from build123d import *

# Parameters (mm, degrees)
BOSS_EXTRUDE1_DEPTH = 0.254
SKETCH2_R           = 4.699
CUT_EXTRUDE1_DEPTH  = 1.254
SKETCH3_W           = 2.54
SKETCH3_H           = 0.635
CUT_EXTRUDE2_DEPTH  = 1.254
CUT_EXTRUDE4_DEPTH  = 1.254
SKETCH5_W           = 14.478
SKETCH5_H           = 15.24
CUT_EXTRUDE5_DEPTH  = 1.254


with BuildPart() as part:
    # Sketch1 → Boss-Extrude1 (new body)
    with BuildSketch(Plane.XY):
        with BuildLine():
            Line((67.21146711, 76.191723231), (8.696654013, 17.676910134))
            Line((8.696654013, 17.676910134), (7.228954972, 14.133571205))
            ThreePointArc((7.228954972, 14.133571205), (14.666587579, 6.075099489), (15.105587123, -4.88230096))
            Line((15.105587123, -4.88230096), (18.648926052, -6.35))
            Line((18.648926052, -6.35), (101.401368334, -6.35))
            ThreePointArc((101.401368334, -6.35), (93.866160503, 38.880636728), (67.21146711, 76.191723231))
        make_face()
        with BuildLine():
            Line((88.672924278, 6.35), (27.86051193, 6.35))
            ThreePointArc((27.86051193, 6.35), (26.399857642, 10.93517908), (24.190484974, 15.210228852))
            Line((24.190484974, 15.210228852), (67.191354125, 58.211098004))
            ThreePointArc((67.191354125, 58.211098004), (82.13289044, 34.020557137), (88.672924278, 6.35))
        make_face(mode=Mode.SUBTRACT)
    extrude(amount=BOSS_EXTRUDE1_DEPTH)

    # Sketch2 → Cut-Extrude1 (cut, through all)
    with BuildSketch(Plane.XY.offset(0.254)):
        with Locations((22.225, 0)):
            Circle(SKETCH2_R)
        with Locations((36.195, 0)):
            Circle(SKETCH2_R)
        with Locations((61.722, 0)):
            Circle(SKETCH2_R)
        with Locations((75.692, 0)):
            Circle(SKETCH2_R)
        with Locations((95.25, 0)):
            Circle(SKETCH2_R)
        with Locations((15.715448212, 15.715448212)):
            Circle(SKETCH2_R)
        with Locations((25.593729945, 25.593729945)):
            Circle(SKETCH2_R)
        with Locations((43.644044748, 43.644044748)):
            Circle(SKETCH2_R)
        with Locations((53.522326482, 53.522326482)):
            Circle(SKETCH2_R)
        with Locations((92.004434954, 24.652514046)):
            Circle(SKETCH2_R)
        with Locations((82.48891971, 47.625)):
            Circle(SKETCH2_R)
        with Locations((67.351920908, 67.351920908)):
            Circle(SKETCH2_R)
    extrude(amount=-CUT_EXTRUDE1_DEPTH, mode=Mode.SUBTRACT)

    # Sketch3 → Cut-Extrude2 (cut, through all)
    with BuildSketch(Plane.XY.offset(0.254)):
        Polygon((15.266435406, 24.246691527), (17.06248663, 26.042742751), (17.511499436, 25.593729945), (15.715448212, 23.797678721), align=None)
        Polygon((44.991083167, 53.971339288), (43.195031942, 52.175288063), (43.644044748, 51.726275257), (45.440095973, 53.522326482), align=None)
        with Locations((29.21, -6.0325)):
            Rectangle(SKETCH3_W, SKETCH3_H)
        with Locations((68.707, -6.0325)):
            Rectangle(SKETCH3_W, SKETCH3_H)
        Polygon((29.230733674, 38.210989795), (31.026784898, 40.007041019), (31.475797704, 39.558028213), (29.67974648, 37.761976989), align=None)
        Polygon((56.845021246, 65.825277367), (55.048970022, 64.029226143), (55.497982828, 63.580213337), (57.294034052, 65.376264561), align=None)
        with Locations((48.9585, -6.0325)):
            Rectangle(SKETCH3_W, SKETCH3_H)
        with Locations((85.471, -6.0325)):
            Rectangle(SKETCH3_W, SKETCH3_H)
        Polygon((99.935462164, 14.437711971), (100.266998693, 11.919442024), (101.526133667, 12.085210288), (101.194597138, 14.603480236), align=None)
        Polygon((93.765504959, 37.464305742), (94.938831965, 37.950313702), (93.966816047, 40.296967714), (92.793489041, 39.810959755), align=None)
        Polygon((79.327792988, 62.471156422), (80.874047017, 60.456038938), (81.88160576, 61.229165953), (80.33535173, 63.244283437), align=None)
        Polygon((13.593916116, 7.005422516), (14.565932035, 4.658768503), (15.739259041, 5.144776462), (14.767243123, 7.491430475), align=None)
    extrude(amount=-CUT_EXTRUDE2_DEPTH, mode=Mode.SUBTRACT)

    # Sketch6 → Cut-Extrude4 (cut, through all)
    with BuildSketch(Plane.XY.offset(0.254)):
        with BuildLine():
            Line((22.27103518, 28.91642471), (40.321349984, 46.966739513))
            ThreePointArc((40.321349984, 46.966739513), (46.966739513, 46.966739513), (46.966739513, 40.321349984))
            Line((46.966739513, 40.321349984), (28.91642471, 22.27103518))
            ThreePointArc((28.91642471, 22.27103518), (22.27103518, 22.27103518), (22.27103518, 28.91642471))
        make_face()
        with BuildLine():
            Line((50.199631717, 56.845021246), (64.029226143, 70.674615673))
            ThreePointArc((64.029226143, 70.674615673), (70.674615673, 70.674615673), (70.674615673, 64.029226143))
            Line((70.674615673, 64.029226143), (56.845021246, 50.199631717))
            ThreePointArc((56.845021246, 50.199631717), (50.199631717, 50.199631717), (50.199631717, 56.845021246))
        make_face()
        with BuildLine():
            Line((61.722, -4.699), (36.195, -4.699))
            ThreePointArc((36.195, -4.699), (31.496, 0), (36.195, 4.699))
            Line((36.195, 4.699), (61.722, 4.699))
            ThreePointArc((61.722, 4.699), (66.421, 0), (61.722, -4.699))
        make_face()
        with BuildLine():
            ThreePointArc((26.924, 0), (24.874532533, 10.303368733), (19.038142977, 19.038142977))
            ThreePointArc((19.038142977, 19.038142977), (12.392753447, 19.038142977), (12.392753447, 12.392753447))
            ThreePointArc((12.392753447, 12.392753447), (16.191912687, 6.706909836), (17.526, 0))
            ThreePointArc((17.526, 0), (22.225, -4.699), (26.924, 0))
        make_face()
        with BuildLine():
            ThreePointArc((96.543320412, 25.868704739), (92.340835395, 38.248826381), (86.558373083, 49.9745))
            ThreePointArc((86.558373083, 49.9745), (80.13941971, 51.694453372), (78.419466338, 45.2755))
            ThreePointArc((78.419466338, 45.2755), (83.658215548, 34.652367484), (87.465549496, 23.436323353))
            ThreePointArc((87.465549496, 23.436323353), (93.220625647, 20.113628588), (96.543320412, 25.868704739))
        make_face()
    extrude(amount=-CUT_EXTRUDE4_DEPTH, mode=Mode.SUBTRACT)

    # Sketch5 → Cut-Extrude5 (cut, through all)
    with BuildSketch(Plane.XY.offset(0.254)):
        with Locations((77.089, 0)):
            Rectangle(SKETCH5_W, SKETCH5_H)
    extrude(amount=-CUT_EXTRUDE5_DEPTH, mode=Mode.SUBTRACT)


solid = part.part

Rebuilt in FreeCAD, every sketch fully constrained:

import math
import FreeCAD as App
import Part
import Sketcher
from FreeCAD import Vector
Q = App.Units.Quantity

doc = App.newDocument("Part")
body = doc.addObject("PartDesign::Body", "Body")

sketch1 = doc.addObject("Sketcher::SketchObject", "Sketch")
body.addObject(sketch1)
sketch1.AttachmentSupport = (doc.XY_Plane, [""])
sketch1.MapMode = "FlatFace"
sketch1.addGeometry([
    Part.LineSegment(Vector(67.2, 76.2, 0), Vector(8.7, 17.7, 0)),
    Part.LineSegment(Vector(8.7, 17.7, 0), Vector(7.2, 14.1, 0)),
    Part.ArcOfCircle(Part.Circle(Vector(0, 0, 0), Vector(0, 0, 1), 15.9), math.radians(-18), math.radians(63)),
    Part.LineSegment(Vector(15.1, -4.9, 0), Vector(18.6, -6.3, 0)),
    Part.LineSegment(Vector(18.6, -6.3, 0), Vector(101.4, -6.3, 0)),
    Part.ArcOfCircle(Part.Circle(Vector(0, 0, 0), Vector(0, 0, 1), 101.6), math.radians(-4), math.radians(49)),
    Part.ArcOfCircle(Part.Circle(Vector(0, 0, 0), Vector(0, 0, 1), 88.9), math.radians(4), math.radians(41)),
    Part.LineSegment(Vector(88.7, 6.3, 0), Vector(27.9, 6.3, 0)),
    Part.ArcOfCircle(Part.Circle(Vector(0, 0, 0), Vector(0, 0, 1), 28.6), math.radians(12.84), math.radians(32.16)),
    Part.LineSegment(Vector(24.2, 15.2, 0), Vector(67.2, 58.2, 0)),
], False)
sketch1.addConstraint([
    Sketcher.Constraint("Coincident", 0, 2, 1, 1),
    Sketcher.Constraint("Coincident", 1, 2, 2, 2),
    Sketcher.Constraint("Coincident", 2, 1, 3, 1),
    Sketcher.Constraint("Coincident", 3, 2, 4, 1),
    Sketcher.Constraint("Coincident", 4, 2, 5, 1),
    Sketcher.Constraint("Coincident", 5, 2, 0, 1),
    Sketcher.Constraint("Coincident", 6, 1, 7, 1),
    Sketcher.Constraint("Coincident", 7, 2, 8, 1),
    Sketcher.Constraint("Coincident", 8, 2, 9, 1),
    Sketcher.Constraint("Coincident", 9, 2, 6, 2),
    Sketcher.Constraint("Horizontal", 4),
    Sketcher.Constraint("Horizontal", 7),
    Sketcher.Constraint("Coincident", 2, 3, -1, 1),
    Sketcher.Constraint("Coincident", 5, 3, -1, 1),
    Sketcher.Constraint("Coincident", 6, 3, -1, 1),
    Sketcher.Constraint("Coincident", 8, 3, -1, 1),
    Sketcher.Constraint("Perpendicular", 1, 3),
    Sketcher.Constraint("Parallel", 0, 9),
    Sketcher.Constraint("Equal", 1, 3),
    Sketcher.Constraint("Radius", 5, Q("4 in")),
    Sketcher.Constraint("Radius", 6, Q("3.5 in")),
    Sketcher.Constraint("Angle", 0, Q("-135 deg")),
    Sketcher.Constraint("Radius", 2, Q("0.625 in")),
    Sketcher.Constraint("Radius", 8, Q("1.125 in")),
    Sketcher.Constraint("Angle", 1, Q("-112.5 deg")),
    Sketcher.Constraint("DistanceY", 4, 2, 6, 1, Q("0.5 in")),
    Sketcher.Constraint("DistanceY", 3, 2, -1, 1, Q("0.25 in")),
    Sketcher.Constraint("DistanceY", 2, 1, -1, 1, Q("4.882301 mm")),
    Sketcher.Constraint("DistanceY", -1, 1, 9, 2, Q("58.211098 mm")),
    Sketcher.Constraint("DistanceX", 5, 2, 4, 2, Q("34.189901 mm")),
])
pad1 = doc.addObject("PartDesign::Pad", "Pad")
body.addObject(pad1)
pad1.Profile = sketch1
pad1.Length = Q("0.01 in")

sketch2 = doc.addObject("Sketcher::SketchObject", "Sketch001")
body.addObject(sketch2)
sketch2.AttachmentSupport = (doc.XY_Plane, [""])
sketch2.MapMode = "FlatFace"
sketch2.AttachmentOffset = App.Placement(Vector(0, 0, 0.01 * 25.4), App.Rotation())
sketch2.addGeometry([
    Part.Circle(Vector(22.2, 0, 0), Vector(0, 0, 1), 4.7),
    Part.Circle(Vector(36.2, 0, 0), Vector(0, 0, 1), 4.7),
    Part.Circle(Vector(61.7, 0, 0), Vector(0, 0, 1), 4.7),
    Part.Circle(Vector(75.7, 0, 0), Vector(0, 0, 1), 4.7),
    Part.Circle(Vector(95.2, 0, 0), Vector(0, 0, 1), 4.7),
    Part.Circle(Vector(15.7, 15.7, 0), Vector(0, 0, 1), 4.7),
    Part.Circle(Vector(25.6, 25.6, 0), Vector(0, 0, 1), 4.7),
    Part.Circle(Vector(43.6, 43.6, 0), Vector(0, 0, 1), 4.7),
    Part.Circle(Vector(53.5, 53.5, 0), Vector(0, 0, 1), 4.7),
    Part.Circle(Vector(92, 24.7, 0), Vector(0, 0, 1), 4.7),
    Part.Circle(Vector(82.5, 47.6, 0), Vector(0, 0, 1), 4.7),
    Part.Circle(Vector(67.4, 67.4, 0), Vector(0, 0, 1), 4.7),
], False)
sketch2.addConstraint([
    Sketcher.Constraint("Equal", 0, 1),
    Sketcher.Constraint("Equal", 1, 2),
    Sketcher.Constraint("Equal", 2, 3),
    Sketcher.Constraint("Equal", 3, 4),
    Sketcher.Constraint("Equal", 4, 5),
    Sketcher.Constraint("Equal", 5, 6),
    Sketcher.Constraint("Equal", 6, 7),
    Sketcher.Constraint("Equal", 7, 8),
    Sketcher.Constraint("Equal", 8, 9),
    Sketcher.Constraint("Equal", 9, 10),
    Sketcher.Constraint("Equal", 10, 11),
    Sketcher.Constraint("PointOnObject", 0, 3, -1),
    Sketcher.Constraint("PointOnObject", 1, 3, -1),
    Sketcher.Constraint("PointOnObject", 2, 3, -1),
    Sketcher.Constraint("PointOnObject", 3, 3, -1),
    Sketcher.Constraint("PointOnObject", 4, 3, -1),
    Sketcher.Constraint("Diameter", 0, Q("0.37 in")),
    Sketcher.Constraint("DistanceX", -1, 1, 2, 3, Q("2.43 in")),
    Sketcher.Constraint("DistanceX", -1, 1, 3, 3, Q("2.98 in")),
    Sketcher.Constraint("DistanceX", -1, 1, 4, 3, Q("3.75 in")),
    Sketcher.Constraint("DistanceX", 0, 3, 1, 3, Q("0.55 in")),
    Sketcher.Constraint("DistanceX", -1, 1, 0, 3, Q("0.875 in")),
    Sketcher.Constraint("DistanceY", -1, 1, 10, 3, Q("1.875 in")),
    Sketcher.Constraint("DistanceX", 11, 3, 10, 3, Q("15.136999 mm")),
    Sketcher.Constraint("DistanceX", -1, 1, 5, 3, Q("15.715448 mm")),
    Sketcher.Constraint("DistanceY", -1, 1, 5, 3, Q("15.715448 mm")),
    Sketcher.Constraint("DistanceX", -1, 1, 6, 3, Q("25.59373 mm")),
    Sketcher.Constraint("DistanceY", -1, 1, 6, 3, Q("25.59373 mm")),
    Sketcher.Constraint("DistanceX", -1, 1, 10, 3, Q("82.48892 mm")),
    Sketcher.Constraint("DistanceY", -1, 1, 11, 3, Q("67.351921 mm")),
    Sketcher.Constraint("DistanceX", 7, 3, 8, 3, Q("9.878282 mm")),
    Sketcher.Constraint("DistanceY", 7, 3, 8, 3, Q("9.878282 mm")),
    Sketcher.Constraint("DistanceX", 5, 3, 8, 3, Q("37.806878 mm")),
    Sketcher.Constraint("DistanceY", 5, 3, 8, 3, Q("37.806878 mm")),
    Sketcher.Constraint("DistanceX", 8, 3, 9, 3, Q("38.482108 mm")),
    Sketcher.Constraint("DistanceY", 9, 3, 7, 3, Q("18.991531 mm")),
])
pocket1 = doc.addObject("PartDesign::Pocket", "Pocket")
body.addObject(pocket1)
pocket1.Profile = sketch2
pocket1.Type = "ThroughAll"

sketch3 = doc.addObject("Sketcher::SketchObject", "Sketch002")
body.addObject(sketch3)
sketch3.AttachmentSupport = (doc.XY_Plane, [""])
sketch3.MapMode = "FlatFace"
sketch3.AttachmentOffset = App.Placement(Vector(0, 0, 0.01 * 25.4), App.Rotation())
sketch3.addGeometry([
    Part.LineSegment(Vector(17.1, 26, 0), Vector(15.3, 24.2, 0)),
    Part.LineSegment(Vector(15.3, 24.2, 0), Vector(15.7, 23.8, 0)),
    Part.LineSegment(Vector(15.7, 23.8, 0), Vector(17.5, 25.6, 0)),
    Part.LineSegment(Vector(17.5, 25.6, 0), Vector(17.1, 26, 0)),
    Part.LineSegment(Vector(45, 54, 0), Vector(43.2, 52.2, 0)),
    Part.LineSegment(Vector(43.2, 52.2, 0), Vector(43.6, 51.7, 0)),
    Part.LineSegment(Vector(43.6, 51.7, 0), Vector(45.4, 53.5, 0)),
    Part.LineSegment(Vector(45.4, 53.5, 0), Vector(45, 54, 0)),
    Part.LineSegment(Vector(27.9, -5.7, 0), Vector(27.9, -6.3, 0)),
    Part.LineSegment(Vector(27.9, -6.3, 0), Vector(30.5, -6.3, 0)),
    Part.LineSegment(Vector(30.5, -6.3, 0), Vector(30.5, -5.7, 0)),
    Part.LineSegment(Vector(30.5, -5.7, 0), Vector(27.9, -5.7, 0)),
    Part.LineSegment(Vector(67.4, -5.7, 0), Vector(67.4, -6.3, 0)),
    Part.LineSegment(Vector(67.4, -6.3, 0), Vector(70, -6.3, 0)),
    Part.LineSegment(Vector(70, -6.3, 0), Vector(70, -5.7, 0)),
    Part.LineSegment(Vector(70, -5.7, 0), Vector(67.4, -5.7, 0)),
    Part.LineSegment(Vector(31, 40, 0), Vector(29.2, 38.2, 0)),
    Part.LineSegment(Vector(29.2, 38.2, 0), Vector(29.7, 37.8, 0)),
    Part.LineSegment(Vector(29.7, 37.8, 0), Vector(31.5, 39.6, 0)),
    Part.LineSegment(Vector(31.5, 39.6, 0), Vector(31, 40, 0)),
    Part.LineSegment(Vector(56.8, 65.8, 0), Vector(55, 64, 0)),
    Part.LineSegment(Vector(55, 64, 0), Vector(55.5, 63.6, 0)),
    Part.LineSegment(Vector(55.5, 63.6, 0), Vector(57.3, 65.4, 0)),
    Part.LineSegment(Vector(57.3, 65.4, 0), Vector(56.8, 65.8, 0)),
    Part.LineSegment(Vector(47.7, -5.7, 0), Vector(47.7, -6.3, 0)),
    Part.LineSegment(Vector(47.7, -6.3, 0), Vector(50.2, -6.3, 0)),
    Part.LineSegment(Vector(50.2, -6.3, 0), Vector(50.2, -5.7, 0)),
    Part.LineSegment(Vector(50.2, -5.7, 0), Vector(47.7, -5.7, 0)),
    Part.LineSegment(Vector(84.2, -5.7, 0), Vector(84.2, -6.3, 0)),
    Part.LineSegment(Vector(84.2, -6.3, 0), Vector(86.7, -6.3, 0)),
    Part.LineSegment(Vector(86.7, -6.3, 0), Vector(86.7, -5.7, 0)),
    Part.LineSegment(Vector(86.7, -5.7, 0), Vector(84.2, -5.7, 0)),
    Part.LineSegment(Vector(99.9, 14.4, 0), Vector(100.3, 11.9, 0)),
    Part.LineSegment(Vector(100.3, 11.9, 0), Vector(101.5, 12.1, 0)),
    Part.LineSegment(Vector(101.5, 12.1, 0), Vector(101.2, 14.6, 0)),
    Part.LineSegment(Vector(101.2, 14.6, 0), Vector(99.9, 14.4, 0)),
    Part.LineSegment(Vector(93.8, 37.5, 0), Vector(94.9, 38, 0)),
    Part.LineSegment(Vector(94.9, 38, 0), Vector(94, 40.3, 0)),
    Part.LineSegment(Vector(94, 40.3, 0), Vector(92.8, 39.8, 0)),
    Part.LineSegment(Vector(92.8, 39.8, 0), Vector(93.8, 37.5, 0)),
    Part.LineSegment(Vector(79.3, 62.5, 0), Vector(80.9, 60.5, 0)),
    Part.LineSegment(Vector(80.9, 60.5, 0), Vector(81.9, 61.2, 0)),
    Part.LineSegment(Vector(81.9, 61.2, 0), Vector(80.3, 63.2, 0)),
    Part.LineSegment(Vector(80.3, 63.2, 0), Vector(79.3, 62.5, 0)),
    Part.LineSegment(Vector(13.6, 7, 0), Vector(14.6, 4.7, 0)),
    Part.LineSegment(Vector(14.6, 4.7, 0), Vector(15.7, 5.1, 0)),
    Part.LineSegment(Vector(15.7, 5.1, 0), Vector(14.8, 7.5, 0)),
    Part.LineSegment(Vector(14.8, 7.5, 0), Vector(13.6, 7, 0)),
], False)
sketch3.addConstraint([
    Sketcher.Constraint("Coincident", 0, 2, 1, 1),
    Sketcher.Constraint("Coincident", 1, 2, 2, 1),
    Sketcher.Constraint("Coincident", 2, 2, 3, 1),
    Sketcher.Constraint("Coincident", 3, 2, 0, 1),
    Sketcher.Constraint("Coincident", 4, 2, 5, 1),
    Sketcher.Constraint("Coincident", 5, 2, 6, 1),
    Sketcher.Constraint("Coincident", 6, 2, 7, 1),
    Sketcher.Constraint("Coincident", 7, 2, 4, 1),
    Sketcher.Constraint("Coincident", 8, 2, 9, 1),
    Sketcher.Constraint("Coincident", 9, 2, 10, 1),
    Sketcher.Constraint("Coincident", 10, 2, 11, 1),
    Sketcher.Constraint("Coincident", 11, 2, 8, 1),
    Sketcher.Constraint("Coincident", 12, 2, 13, 1),
    Sketcher.Constraint("Coincident", 13, 2, 14, 1),
    Sketcher.Constraint("Coincident", 14, 2, 15, 1),
    Sketcher.Constraint("Coincident", 15, 2, 12, 1),
    Sketcher.Constraint("Coincident", 16, 2, 17, 1),
    Sketcher.Constraint("Coincident", 17, 2, 18, 1),
    Sketcher.Constraint("Coincident", 18, 2, 19, 1),
    Sketcher.Constraint("Coincident", 19, 2, 16, 1),
    Sketcher.Constraint("Coincident", 20, 2, 21, 1),
    Sketcher.Constraint("Coincident", 21, 2, 22, 1),
    Sketcher.Constraint("Coincident", 22, 2, 23, 1),
    Sketcher.Constraint("Coincident", 23, 2, 20, 1),
    Sketcher.Constraint("Coincident", 24, 2, 25, 1),
    Sketcher.Constraint("Coincident", 25, 2, 26, 1),
    Sketcher.Constraint("Coincident", 26, 2, 27, 1),
    Sketcher.Constraint("Coincident", 27, 2, 24, 1),
    Sketcher.Constraint("Coincident", 28, 2, 29, 1),
    Sketcher.Constraint("Coincident", 29, 2, 30, 1),
    Sketcher.Constraint("Coincident", 30, 2, 31, 1),
    Sketcher.Constraint("Coincident", 31, 2, 28, 1),
    Sketcher.Constraint("Coincident", 32, 2, 33, 1),
    Sketcher.Constraint("Coincident", 33, 2, 34, 1),
    Sketcher.Constraint("Coincident", 34, 2, 35, 1),
    Sketcher.Constraint("Coincident", 35, 2, 32, 1),
    Sketcher.Constraint("Coincident", 36, 2, 37, 1),
    Sketcher.Constraint("Coincident", 37, 2, 38, 1),
    Sketcher.Constraint("Coincident", 38, 2, 39, 1),
    Sketcher.Constraint("Coincident", 39, 2, 36, 1),
    Sketcher.Constraint("Coincident", 40, 2, 41, 1),
    Sketcher.Constraint("Coincident", 41, 2, 42, 1),
    Sketcher.Constraint("Coincident", 42, 2, 43, 1),
    Sketcher.Constraint("Coincident", 43, 2, 40, 1),
    Sketcher.Constraint("Coincident", 44, 2, 45, 1),
    Sketcher.Constraint("Coincident", 45, 2, 46, 1),
    Sketcher.Constraint("Coincident", 46, 2, 47, 1),
    Sketcher.Constraint("Coincident", 47, 2, 44, 1),
    Sketcher.Constraint("Vertical", 8),
    Sketcher.Constraint("Horizontal", 9),
    Sketcher.Constraint("Vertical", 10),
    Sketcher.Constraint("Horizontal", 11),
    Sketcher.Constraint("Vertical", 12),
    Sketcher.Constraint("Horizontal", 13),
    Sketcher.Constraint("Vertical", 14),
    Sketcher.Constraint("Horizontal", 15),
    Sketcher.Constraint("Vertical", 24),
    Sketcher.Constraint("Horizontal", 25),
    Sketcher.Constraint("Vertical", 26),
    Sketcher.Constraint("Horizontal", 27),
    Sketcher.Constraint("Vertical", 28),
    Sketcher.Constraint("Horizontal", 29),
    Sketcher.Constraint("Vertical", 30),
    Sketcher.Constraint("Horizontal", 31),
    Sketcher.Constraint("Perpendicular", 0, 1),
    Sketcher.Constraint("Perpendicular", 1, 2),
    Sketcher.Constraint("Perpendicular", 2, 3),
    Sketcher.Constraint("Perpendicular", 3, 4),
    Sketcher.Constraint("Perpendicular", 4, 5),
    Sketcher.Constraint("Perpendicular", 5, 6),
    Sketcher.Constraint("Perpendicular", 6, 7),
    Sketcher.Constraint("Perpendicular", 7, 16),
    Sketcher.Constraint("Perpendicular", 16, 17),
    Sketcher.Constraint("Perpendicular", 17, 18),
    Sketcher.Constraint("Perpendicular", 18, 19),
    Sketcher.Constraint("Perpendicular", 19, 20),
    Sketcher.Constraint("Perpendicular", 20, 21),
    Sketcher.Constraint("Perpendicular", 21, 22),
    Sketcher.Constraint("Perpendicular", 22, 23),
    Sketcher.Constraint("Perpendicular", 32, 33),
    Sketcher.Constraint("Perpendicular", 33, 34),
    Sketcher.Constraint("Perpendicular", 34, 35),
    Sketcher.Constraint("Perpendicular", 36, 37),
    Sketcher.Constraint("Perpendicular", 37, 38),
    Sketcher.Constraint("Perpendicular", 38, 39),
    Sketcher.Constraint("Perpendicular", 40, 41),
    Sketcher.Constraint("Perpendicular", 41, 42),
    Sketcher.Constraint("Perpendicular", 42, 43),
    Sketcher.Constraint("Parallel", 39, 44),
    Sketcher.Constraint("Perpendicular", 44, 45),
    Sketcher.Constraint("Perpendicular", 45, 46),
    Sketcher.Constraint("Perpendicular", 46, 47),
    Sketcher.Constraint("Horizontal", 9, 2, 12, 2),
    Sketcher.Constraint("Horizontal", 11, 2, 14, 2),
    Sketcher.Constraint("Horizontal", 13, 2, 24, 2),
    Sketcher.Constraint("Horizontal", 15, 2, 26, 2),
    Sketcher.Constraint("Horizontal", 25, 2, 28, 2),
    Sketcher.Constraint("Horizontal", 27, 2, 30, 2),
    Sketcher.Constraint("Equal", 11, 13),
    Sketcher.Constraint("Equal", 15, 25),
    Sketcher.Constraint("Equal", 27, 29),
    Sketcher.Constraint("Equal", 2, 4),
    Sketcher.Constraint("Equal", 3, 5),
    Sketcher.Constraint("Equal", 6, 16),
    Sketcher.Constraint("Equal", 7, 17),
    Sketcher.Constraint("Equal", 18, 20),
    Sketcher.Constraint("Equal", 19, 21),
    Sketcher.Constraint("Equal", 22, 32),
    Sketcher.Constraint("Equal", 35, 36),
    Sketcher.Constraint("Equal", 34, 37),
    Sketcher.Constraint("Equal", 39, 40),
    Sketcher.Constraint("Equal", 38, 41),
    Sketcher.Constraint("Equal", 42, 44),
    Sketcher.Constraint("Equal", 43, 45),
    Sketcher.Constraint("DistanceX", 9, 1, 9, 2, Q("0.1 in")),
    Sketcher.Constraint("Angle", 0, Q("-135 deg")),
    Sketcher.Constraint("Distance", 0, Q("0.1 in")),
    Sketcher.Constraint("DistanceX", -1, 1, 8, 2, Q("1.1 in")),
    Sketcher.Constraint("Angle", 32, Q("-82.5 deg")),
    Sketcher.Constraint("Angle", 36, Q("22.5 deg")),
    Sketcher.Constraint("Angle", 40, Q("-52.5 deg")),
    Sketcher.Constraint("Distance", 33, Q("0.05 in")),
    Sketcher.Constraint("DistanceY", 8, 2, 8, 1, Q("0.025 in")),
    Sketcher.Constraint("DistanceY", 8, 2, -1, 1, Q("0.25 in")),
    Sketcher.Constraint("DistanceX", 13, 2, 28, 2, Q("0.56 in")),
    Sketcher.Constraint("Distance", 1, Q("0.025 in")),
    Sketcher.Constraint("DistanceX", -1, 1, 12, 2, Q("2.655 in")),
    Sketcher.Constraint("DistanceX", -1, 1, 24, 2, Q("1.8775 in")),
    Sketcher.Constraint("DistanceX", -1, 1, 2, 2, Q("17.511499 mm")),
    Sketcher.Constraint("DistanceX", -1, 1, 32, 2, Q("100.266999 mm")),
    Sketcher.Constraint("DistanceX", 16, 2, 4, 2, Q("13.964298 mm")),
    Sketcher.Constraint("DistanceY", 16, 2, 4, 2, Q("13.964298 mm")),
    Sketcher.Constraint("DistanceX", 0, 2, 16, 2, Q("13.964298 mm")),
    Sketcher.Constraint("DistanceY", 0, 2, 16, 2, Q("13.964298 mm")),
    Sketcher.Constraint("DistanceY", 6, 2, 20, 2, Q("10.5069 mm")),
    Sketcher.Constraint("DistanceX", 7, 2, 21, 2, Q("10.5069 mm")),
    Sketcher.Constraint("DistanceY", 35, 2, 36, 2, Q("23.512602 mm")),
    Sketcher.Constraint("DistanceX", 36, 2, 33, 2, Q("6.587302 mm")),
    Sketcher.Constraint("DistanceY", 37, 2, 41, 2, Q("20.932198 mm")),
    Sketcher.Constraint("DistanceY", 41, 2, 22, 2, Q("4.147099 mm")),
    Sketcher.Constraint("DistanceY", 46, 2, 2, 2, Q("18.102299 mm")),
    Sketcher.Constraint("DistanceY", -1, 1, 0, 2, Q("24.246692 mm")),
    Sketcher.Constraint("DistanceX", -1, 1, 42, 2, Q("80.335352 mm")),
    Sketcher.Constraint("DistanceX", -1, 1, 45, 2, Q("15.739259 mm")),
])
pocket2 = doc.addObject("PartDesign::Pocket", "Pocket001")
body.addObject(pocket2)
pocket2.Profile = sketch3
pocket2.Type = "ThroughAll"

sketch4 = doc.addObject("Sketcher::SketchObject", "Sketch003")
body.addObject(sketch4)
sketch4.AttachmentSupport = (doc.XY_Plane, [""])
sketch4.MapMode = "FlatFace"
sketch4.AttachmentOffset = App.Placement(Vector(0, 0, 0.01 * 25.4), App.Rotation())
sketch4.addGeometry([
    Part.LineSegment(Vector(40.3, 47, 0), Vector(22.3, 28.9, 0)),
    Part.ArcOfCircle(Part.Circle(Vector(25.6, 25.6, 0), Vector(0, 0, 1), 4.7), math.radians(135), math.radians(315)),
    Part.LineSegment(Vector(28.9, 22.3, 0), Vector(47, 40.3, 0)),
    Part.ArcOfCircle(Part.Circle(Vector(43.6, 43.6, 0), Vector(0, 0, 1), 4.7), math.radians(-45), math.radians(135)),
    Part.LineSegment(Vector(64, 70.7, 0), Vector(50.2, 56.8, 0)),
    Part.ArcOfCircle(Part.Circle(Vector(53.5, 53.5, 0), Vector(0, 0, 1), 4.7), math.radians(135), math.radians(315)),
    Part.LineSegment(Vector(56.8, 50.2, 0), Vector(70.7, 64, 0)),
    Part.ArcOfCircle(Part.Circle(Vector(67.4, 67.4, 0), Vector(0, 0, 1), 4.7), math.radians(-45), math.radians(135)),
    Part.LineSegment(Vector(36.2, -4.7, 0), Vector(61.7, -4.7, 0)),
    Part.ArcOfCircle(Part.Circle(Vector(61.7, 0, 0), Vector(0, 0, 1), 4.7), math.radians(-90), math.radians(90)),
    Part.LineSegment(Vector(61.7, 4.7, 0), Vector(36.2, 4.7, 0)),
    Part.ArcOfCircle(Part.Circle(Vector(36.2, 0, 0), Vector(0, 0, 1), 4.7), math.radians(90), math.radians(270)),
    Part.ArcOfCircle(Part.Circle(Vector(0, 0, 0), Vector(0, 0, 1), 26.9), math.radians(0), math.radians(45)),
    Part.ArcOfCircle(Part.Circle(Vector(15.7, 15.7, 0), Vector(0, 0, 1), 4.7), math.radians(45), math.radians(225)),
    Part.ArcOfCircle(Part.Circle(Vector(0, 0, 0), Vector(0, 0, 1), 17.5), math.radians(0), math.radians(45)),
    Part.ArcOfCircle(Part.Circle(Vector(22.2, 0, 0), Vector(0, 0, 1), 4.7), math.radians(180), math.radians(360)),
    Part.ArcOfCircle(Part.Circle(Vector(0, 0, 0), Vector(0, 0, 1), 99.9), math.radians(15), math.radians(30)),
    Part.ArcOfCircle(Part.Circle(Vector(82.5, 47.6, 0), Vector(0, 0, 1), 4.7), math.radians(30), math.radians(210)),
    Part.ArcOfCircle(Part.Circle(Vector(0, 0, 0), Vector(0, 0, 1), 90.6), math.radians(15), math.radians(30)),
    Part.ArcOfCircle(Part.Circle(Vector(92, 24.7, 0), Vector(0, 0, 1), 4.7), math.radians(-165), math.radians(15)),
], False)
sketch4.addConstraint([
    Sketcher.Constraint("Tangent", 0, 2, 1, 1),
    Sketcher.Constraint("Tangent", 1, 2, 2, 1),
    Sketcher.Constraint("Tangent", 2, 2, 3, 1),
    Sketcher.Constraint("Tangent", 3, 2, 0, 1),
    Sketcher.Constraint("Tangent", 4, 2, 5, 1),
    Sketcher.Constraint("Tangent", 5, 2, 6, 1),
    Sketcher.Constraint("Tangent", 6, 2, 7, 1),
    Sketcher.Constraint("Tangent", 7, 2, 4, 1),
    Sketcher.Constraint("Tangent", 8, 2, 9, 1),
    Sketcher.Constraint("Tangent", 9, 2, 10, 1),
    Sketcher.Constraint("Tangent", 10, 2, 11, 1),
    Sketcher.Constraint("Tangent", 11, 2, 8, 1),
    Sketcher.Constraint("Tangent", 12, 2, 13, 1),
    Sketcher.Constraint("Tangent", 13, 2, 14, 2),
    Sketcher.Constraint("Tangent", 14, 1, 15, 1),
    Sketcher.Constraint("Tangent", 15, 2, 12, 1),
    Sketcher.Constraint("Tangent", 16, 2, 17, 1),
    Sketcher.Constraint("Tangent", 17, 2, 18, 2),
    Sketcher.Constraint("Tangent", 18, 1, 19, 1),
    Sketcher.Constraint("Tangent", 19, 2, 16, 1),
    Sketcher.Constraint("Horizontal", 8),
    Sketcher.Constraint("Horizontal", 10),
    Sketcher.Constraint("Coincident", 12, 3, -1, 1),
    Sketcher.Constraint("Coincident", 14, 3, -1, 1),
    Sketcher.Constraint("Coincident", 16, 3, -1, 1),
    Sketcher.Constraint("Coincident", 18, 3, -1, 1),
    Sketcher.Constraint("Equal", 1, 3),
    Sketcher.Constraint("Equal", 3, 5),
    Sketcher.Constraint("Equal", 5, 7),
    Sketcher.Constraint("Equal", 7, 9),
    Sketcher.Constraint("Equal", 11, 13),
    Sketcher.Constraint("Equal", 15, 17),
    Sketcher.Constraint("PointOnObject", 9, 3, -1),
    Sketcher.Constraint("PointOnObject", 15, 3, -1),
    Sketcher.Constraint("Parallel", 2, 4),
    Sketcher.Constraint("Radius", 12, Q("1.06 in")),
    Sketcher.Constraint("Radius", 14, Q("0.69 in")),
    Sketcher.Constraint("Angle", 0, Q("-135 deg")),
    Sketcher.Constraint("Radius", 16, Q("3.935 in")),
    Sketcher.Constraint("Distance", 4, Q("0.77 in")),
    Sketcher.Constraint("DistanceX", 8, 1, 8, 2, Q("1.005 in")),
    Sketcher.Constraint("DistanceX", -1, 1, 9, 3, Q("2.43 in")),
    Sketcher.Constraint("Distance", 0, Q("1.005 in")),
    Sketcher.Constraint("DistanceY", -1, 1, 17, 3, Q("1.875 in")),
    Sketcher.Constraint("DistanceX", 7, 3, 17, 3, Q("15.136999 mm")),
    Sketcher.Constraint("DistanceX", 17, 3, 19, 2, Q("14.054401 mm")),
    Sketcher.Constraint("DistanceX", -1, 1, 1, 3, Q("25.59373 mm")),
    Sketcher.Constraint("DistanceY", -1, 1, 1, 3, Q("25.59373 mm")),
    Sketcher.Constraint("DistanceY", -1, 1, 7, 3, Q("67.351921 mm")),
    Sketcher.Constraint("DistanceX", -1, 1, 13, 3, Q("15.715448 mm")),
])
pocket3 = doc.addObject("PartDesign::Pocket", "Pocket002")
body.addObject(pocket3)
pocket3.Profile = sketch4
pocket3.Type = "ThroughAll"

sketch5 = doc.addObject("Sketcher::SketchObject", "Sketch004")
body.addObject(sketch5)
sketch5.AttachmentSupport = (doc.XY_Plane, [""])
sketch5.MapMode = "FlatFace"
sketch5.AttachmentOffset = App.Placement(Vector(0, 0, 0.01 * 25.4), App.Rotation())
sketch5.addGeometry([
    Part.LineSegment(Vector(70, 8, 0), Vector(70, -8, 0)),
    Part.LineSegment(Vector(70, -8, 0), Vector(84, -8, 0)),
    Part.LineSegment(Vector(84, -8, 0), Vector(84, 8, 0)),
    Part.LineSegment(Vector(84, 8, 0), Vector(70, 8, 0)),
], False)
sketch5.addConstraint([
    Sketcher.Constraint("Coincident", 0, 2, 1, 1),
    Sketcher.Constraint("Coincident", 1, 2, 2, 1),
    Sketcher.Constraint("Coincident", 2, 2, 3, 1),
    Sketcher.Constraint("Coincident", 3, 2, 0, 1),
    Sketcher.Constraint("Vertical", 0),
    Sketcher.Constraint("Horizontal", 1),
    Sketcher.Constraint("Vertical", 2),
    Sketcher.Constraint("Horizontal", 3),
    Sketcher.Constraint("DistanceY", 0, 2, 0, 1, Q("0.6 in")),
    Sketcher.Constraint("DistanceX", 1, 1, 1, 2, Q("0.57 in")),
    Sketcher.Constraint("DistanceY", 0, 2, -1, 1, Q("0.3 in")),
    Sketcher.Constraint("DistanceX", -1, 1, 0, 2, Q("2.75 in")),
])
pocket4 = doc.addObject("PartDesign::Pocket", "Pocket003")
body.addObject(pocket4)
pocket4.Profile = sketch5
pocket4.Type = "ThroughAll"

doc.recompute()
